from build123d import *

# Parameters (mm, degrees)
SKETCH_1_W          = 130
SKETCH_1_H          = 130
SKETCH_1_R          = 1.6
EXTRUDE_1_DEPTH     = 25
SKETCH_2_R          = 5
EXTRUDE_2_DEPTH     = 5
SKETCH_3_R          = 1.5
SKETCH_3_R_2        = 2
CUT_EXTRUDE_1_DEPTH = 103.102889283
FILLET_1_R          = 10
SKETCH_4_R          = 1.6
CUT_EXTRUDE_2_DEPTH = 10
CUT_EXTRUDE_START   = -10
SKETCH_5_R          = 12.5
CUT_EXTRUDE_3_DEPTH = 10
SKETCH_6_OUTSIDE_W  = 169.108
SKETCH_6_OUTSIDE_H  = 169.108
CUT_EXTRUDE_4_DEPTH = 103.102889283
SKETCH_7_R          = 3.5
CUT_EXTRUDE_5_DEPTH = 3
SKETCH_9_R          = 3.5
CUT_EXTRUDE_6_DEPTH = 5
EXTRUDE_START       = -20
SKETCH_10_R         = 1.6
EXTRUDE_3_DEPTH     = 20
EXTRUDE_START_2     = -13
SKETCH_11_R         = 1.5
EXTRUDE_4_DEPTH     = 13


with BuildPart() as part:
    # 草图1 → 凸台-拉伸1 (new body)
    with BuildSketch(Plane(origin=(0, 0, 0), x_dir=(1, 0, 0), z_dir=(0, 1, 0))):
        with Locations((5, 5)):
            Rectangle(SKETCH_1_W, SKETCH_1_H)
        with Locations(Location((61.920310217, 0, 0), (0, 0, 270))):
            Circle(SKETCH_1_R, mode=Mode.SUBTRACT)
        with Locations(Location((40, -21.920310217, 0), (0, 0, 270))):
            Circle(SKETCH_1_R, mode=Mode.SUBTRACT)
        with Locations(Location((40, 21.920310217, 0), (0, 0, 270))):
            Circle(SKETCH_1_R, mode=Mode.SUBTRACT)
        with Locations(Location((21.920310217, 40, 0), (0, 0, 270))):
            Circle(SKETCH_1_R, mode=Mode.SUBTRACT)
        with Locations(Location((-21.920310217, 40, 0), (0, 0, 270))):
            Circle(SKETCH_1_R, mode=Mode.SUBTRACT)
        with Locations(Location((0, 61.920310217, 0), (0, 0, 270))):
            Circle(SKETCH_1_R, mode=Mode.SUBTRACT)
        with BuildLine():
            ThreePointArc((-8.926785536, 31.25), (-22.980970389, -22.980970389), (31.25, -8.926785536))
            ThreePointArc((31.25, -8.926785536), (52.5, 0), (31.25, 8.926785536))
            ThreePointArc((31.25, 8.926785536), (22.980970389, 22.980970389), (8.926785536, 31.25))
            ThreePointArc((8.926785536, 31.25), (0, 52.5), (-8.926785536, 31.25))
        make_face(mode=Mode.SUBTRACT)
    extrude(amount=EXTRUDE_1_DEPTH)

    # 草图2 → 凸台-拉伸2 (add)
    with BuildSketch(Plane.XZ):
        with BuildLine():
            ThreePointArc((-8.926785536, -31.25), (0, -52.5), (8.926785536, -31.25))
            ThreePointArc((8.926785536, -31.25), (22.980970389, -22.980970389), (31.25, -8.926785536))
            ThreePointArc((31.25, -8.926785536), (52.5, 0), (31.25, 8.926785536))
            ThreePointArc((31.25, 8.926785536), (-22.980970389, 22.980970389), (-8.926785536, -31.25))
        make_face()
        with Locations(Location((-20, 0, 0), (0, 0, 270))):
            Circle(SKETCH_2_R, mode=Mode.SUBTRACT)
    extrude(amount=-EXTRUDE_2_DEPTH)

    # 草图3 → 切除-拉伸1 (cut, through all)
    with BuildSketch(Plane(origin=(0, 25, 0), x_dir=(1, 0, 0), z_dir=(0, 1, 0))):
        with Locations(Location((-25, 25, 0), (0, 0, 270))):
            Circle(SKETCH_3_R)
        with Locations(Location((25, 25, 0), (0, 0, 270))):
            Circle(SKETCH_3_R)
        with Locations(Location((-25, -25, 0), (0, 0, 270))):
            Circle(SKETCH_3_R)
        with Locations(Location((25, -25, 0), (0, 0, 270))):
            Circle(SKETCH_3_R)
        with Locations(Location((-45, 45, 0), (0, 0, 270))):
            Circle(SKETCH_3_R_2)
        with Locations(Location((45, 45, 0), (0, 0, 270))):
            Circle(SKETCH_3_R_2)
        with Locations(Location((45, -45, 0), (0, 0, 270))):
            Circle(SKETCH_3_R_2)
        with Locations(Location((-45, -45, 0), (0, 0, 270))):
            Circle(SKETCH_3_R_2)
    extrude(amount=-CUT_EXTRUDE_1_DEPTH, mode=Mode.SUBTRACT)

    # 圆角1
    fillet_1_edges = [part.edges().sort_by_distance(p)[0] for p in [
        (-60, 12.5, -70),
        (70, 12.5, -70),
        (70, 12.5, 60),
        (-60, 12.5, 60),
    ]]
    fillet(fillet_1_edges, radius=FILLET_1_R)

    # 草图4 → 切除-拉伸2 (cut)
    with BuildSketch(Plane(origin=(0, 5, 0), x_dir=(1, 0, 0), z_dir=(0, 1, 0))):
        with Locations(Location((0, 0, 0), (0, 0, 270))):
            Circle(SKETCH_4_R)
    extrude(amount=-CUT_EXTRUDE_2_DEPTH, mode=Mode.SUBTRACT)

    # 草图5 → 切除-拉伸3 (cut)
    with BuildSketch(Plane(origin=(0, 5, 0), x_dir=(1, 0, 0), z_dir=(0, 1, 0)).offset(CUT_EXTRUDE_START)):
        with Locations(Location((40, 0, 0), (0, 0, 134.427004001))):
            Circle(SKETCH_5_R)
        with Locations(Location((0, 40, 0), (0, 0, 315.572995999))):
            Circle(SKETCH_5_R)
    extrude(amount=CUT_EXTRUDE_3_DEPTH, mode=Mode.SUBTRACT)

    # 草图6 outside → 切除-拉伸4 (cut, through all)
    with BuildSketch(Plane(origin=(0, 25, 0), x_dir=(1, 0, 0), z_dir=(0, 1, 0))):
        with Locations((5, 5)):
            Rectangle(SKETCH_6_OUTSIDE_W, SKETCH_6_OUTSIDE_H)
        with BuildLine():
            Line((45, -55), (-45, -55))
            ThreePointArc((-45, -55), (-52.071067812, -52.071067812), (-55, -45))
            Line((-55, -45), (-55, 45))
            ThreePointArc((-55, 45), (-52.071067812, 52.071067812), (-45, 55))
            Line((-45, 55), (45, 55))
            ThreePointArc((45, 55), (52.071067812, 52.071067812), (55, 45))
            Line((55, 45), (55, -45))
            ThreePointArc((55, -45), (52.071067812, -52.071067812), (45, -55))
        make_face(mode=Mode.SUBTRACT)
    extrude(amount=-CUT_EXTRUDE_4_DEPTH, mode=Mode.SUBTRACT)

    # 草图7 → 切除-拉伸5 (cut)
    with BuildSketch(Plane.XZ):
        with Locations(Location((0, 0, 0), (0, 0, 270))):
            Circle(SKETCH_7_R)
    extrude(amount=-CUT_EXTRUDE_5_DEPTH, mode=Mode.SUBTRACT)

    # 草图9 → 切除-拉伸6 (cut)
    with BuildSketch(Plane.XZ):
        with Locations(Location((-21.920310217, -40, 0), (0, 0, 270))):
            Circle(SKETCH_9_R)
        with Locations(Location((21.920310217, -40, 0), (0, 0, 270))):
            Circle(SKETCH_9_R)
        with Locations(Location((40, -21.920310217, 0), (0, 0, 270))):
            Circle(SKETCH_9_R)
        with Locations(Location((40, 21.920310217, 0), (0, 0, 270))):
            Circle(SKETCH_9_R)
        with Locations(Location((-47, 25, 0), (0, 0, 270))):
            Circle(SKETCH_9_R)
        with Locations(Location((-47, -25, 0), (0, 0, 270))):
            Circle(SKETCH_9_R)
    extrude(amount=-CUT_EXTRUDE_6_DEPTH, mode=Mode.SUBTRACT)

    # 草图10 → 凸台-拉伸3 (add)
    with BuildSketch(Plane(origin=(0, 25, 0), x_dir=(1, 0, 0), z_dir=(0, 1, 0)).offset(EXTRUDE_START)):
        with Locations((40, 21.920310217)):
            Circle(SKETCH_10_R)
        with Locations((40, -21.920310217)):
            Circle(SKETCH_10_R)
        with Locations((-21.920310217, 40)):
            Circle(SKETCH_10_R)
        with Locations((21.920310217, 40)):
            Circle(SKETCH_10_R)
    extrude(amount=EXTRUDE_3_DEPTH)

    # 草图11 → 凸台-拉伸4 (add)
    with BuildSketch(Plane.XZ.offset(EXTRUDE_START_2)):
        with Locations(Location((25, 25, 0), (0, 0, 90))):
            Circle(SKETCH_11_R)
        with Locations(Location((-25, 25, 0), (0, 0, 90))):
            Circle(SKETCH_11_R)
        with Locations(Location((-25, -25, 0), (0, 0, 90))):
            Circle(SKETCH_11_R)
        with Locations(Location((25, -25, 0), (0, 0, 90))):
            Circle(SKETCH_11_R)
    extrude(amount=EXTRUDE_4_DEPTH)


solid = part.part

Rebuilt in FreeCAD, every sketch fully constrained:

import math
import FreeCAD as App
import Part
import Sketcher
Q = App.Units.Quantity


def edges_at(feature, points):
    """Names of the edges that pass closest to the given points."""
    edges = feature.Shape.Edges
    near = lambda p: min(range(len(edges)), key=lambda i: edges[i].distToShape(Part.Vertex(*p))[0])
    return sorted({f"Edge{near(p) + 1}" for p in points})


def add_polygon(sketch, points):
    """Adds a closed chain of lines whose ends are joined by coincident constraints."""
    first, n = sketch.GeometryCount, len(points)
    for a, b in zip(points, points[1:] + points[:1]):
        sketch.addGeometry(Part.LineSegment(App.Vector(*a, 0), App.Vector(*b, 0)), False)
    for i in range(n):
        sketch.addConstraint(Sketcher.Constraint("Coincident", first + i, 2, first + (i + 1) % n, 1))

doc = App.newDocument("Part")
body = doc.addObject("PartDesign::Body", "Body")

# Sketch on XZ plane
sketch1 = body.newObject("Sketcher::SketchObject", "Sketch")
sketch1.AttachmentSupport = (doc.getObject("XZ_Plane"), [""])
sketch1.MapMode = "FlatFace"
add_polygon(sketch1, [(-60, -70), (-60, 60), (70, 60), (70, -70)])  # lines 0-3
sketch1.addGeometry(Part.ArcOfCircle(Part.Circle(App.Vector(0, 0, 0), App.Vector(0, 0, 1), 32.5), math.radians(15.942369), math.radians(254.057631)), False)  # 4
sketch1.addGeometry(Part.ArcOfCircle(Part.Circle(App.Vector(0, -40, 0), App.Vector(0, 0, 1), 12.5), math.radians(135.572996), math.radians(404.427004)), False)  # 5
sketch1.addGeometry(Part.ArcOfCircle(Part.Circle(App.Vector(0, 0, 0), App.Vector(0, 0, 1), 32.5), math.radians(-74.057631), math.radians(-15.942369)), False)  # 6
sketch1.addGeometry(Part.ArcOfCircle(Part.Circle(App.Vector(40, 0, 0), App.Vector(0, 0, 1), 12.5), math.radians(-134.427004), math.radians(134.427004)), False)  # 7
sketch1.addGeometry(Part.Circle(App.Vector(40, 21.92031, 0), App.Vector(0, 0, 1), 1.6), False)  # 8
sketch1.addGeometry(Part.Circle(App.Vector(61.92031, 0, 0), App.Vector(0, 0, 1), 1.6), False)  # 9
sketch1.addGeometry(Part.Circle(App.Vector(-21.92031, -40, 0), App.Vector(0, 0, 1), 1.6), False)  # 10
sketch1.addGeometry(Part.Circle(App.Vector(0, -61.92031, 0), App.Vector(0, 0, 1), 1.6), False)  # 11
sketch1.addGeometry(Part.Circle(App.Vector(40, -21.92031, 0), App.Vector(0, 0, 1), 1.6), False)  # 12
sketch1.addGeometry(Part.Circle(App.Vector(21.92031, -40, 0), App.Vector(0, 0, 1), 1.6), False)  # 13
sketch1.addConstraint([
    Sketcher.Constraint("Coincident", 4, 2, 5, 1),
    Sketcher.Constraint("Coincident", 5, 2, 6, 1),
    Sketcher.Constraint("Coincident", 6, 2, 7, 1),
    Sketcher.Constraint("Coincident", 7, 2, 4, 1),
    Sketcher.Constraint("Vertical", 0),
    Sketcher.Constraint("Horizontal", 1),
    Sketcher.Constraint("Vertical", 2),
    Sketcher.Constraint("Horizontal", 3),
    Sketcher.Constraint("Coincident", 4, 3, -1, 1),
    Sketcher.Constraint("Coincident", 6, 3, -1, 1),
    Sketcher.Constraint("Equal", 4, 6),
    Sketcher.Constraint("Equal", 5, 7),
    Sketcher.Constraint("Equal", 8, 9),
    Sketcher.Constraint("Equal", 9, 10),
    Sketcher.Constraint("Equal", 10, 11),
    Sketcher.Constraint("Equal", 11, 12),
    Sketcher.Constraint("Equal", 12, 13),
    Sketcher.Constraint("Symmetric", 10, 3, 13, 3, -2),
    Sketcher.Constraint("Symmetric", 8, 3, 12, 3, -1),
    Sketcher.Constraint("PointOnObject", 5, 3, -2),
    Sketcher.Constraint("PointOnObject", 7, 3, -1),
    Sketcher.Constraint("PointOnObject", 9, 3, -1),
    Sketcher.Constraint("PointOnObject", 11, 3, -2),
    Sketcher.Constraint("Horizontal", 5, 3, 10, 3),
    Sketcher.Constraint("Vertical", 7, 3, 8, 3),
    Sketcher.Constraint("Equal", 3, 0),
    Sketcher.Constraint("Diameter", 8, Q("3.2 mm")),
    Sketcher.Constraint("Radius", 4, Q("32.5 mm")),
    Sketcher.Constraint("Radius", 5, Q("12.5 mm")),
    Sketcher.Constraint("DistanceX", 1, 1, 1, 2, Q("130 mm")),
    Sketcher.Constraint("DistanceY", 5, 3, -1, 1, Q("40 mm")),
    Sketcher.Constraint("DistanceX", -1, 1, 7, 3, Q("40 mm")),
    Sketcher.Constraint("DistanceX", 0, 2, -1, 1, Q("60 mm")),
    Sketcher.Constraint("DistanceY", -1, 1, 0, 2, Q("60 mm")),
    Sketcher.Constraint("DistanceY", -1, 1, 8, 3, Q("21.92031 mm")),
    Sketcher.Constraint("DistanceX", -1, 1, 9, 3, Q("61.92031 mm")),
    Sketcher.Constraint("DistanceX", 10, 3, -1, 1, Q("21.92031 mm")),
    Sketcher.Constraint("DistanceY", 11, 3, -1, 1, Q("61.92031 mm")),
])
pad1 = body.newObject("PartDesign::Pad", "Pad")
pad1.Profile = sketch1
pad1.Length = 25
pad1.Reversed = True

# Sketch on XZ plane
sketch2 = body.newObject("Sketcher::SketchObject", "Sketch001")
sketch2.AttachmentSupport = (doc.getObject("XZ_Plane"), [""])
sketch2.MapMode = "FlatFace"
sketch2.addGeometry([
    Part.ArcOfCircle(Part.Circle(App.Vector(0, -40, 0), App.Vector(0, 0, 1), 12.5), math.radians(135.572996), math.radians(404.427004)),  # 0
    Part.ArcOfCircle(Part.Circle(App.Vector(0, 0, 0), App.Vector(0, 0, 1), 32.5), math.radians(-74.057631), math.radians(-15.942369)),  # 1
    Part.ArcOfCircle(Part.Circle(App.Vector(40, 0, 0), App.Vector(0, 0, 1), 12.5), math.radians(-134.427004), math.radians(134.427004)),  # 2
    Part.ArcOfCircle(Part.Circle(App.Vector(0, 0, 0), App.Vector(0, 0, 1), 32.5), math.radians(15.942369), math.radians(254.057631)),  # 3
    Part.Circle(App.Vector(-20, 0, 0), App.Vector(0, 0, 1), 5),  # 4
], False)
sketch2.addConstraint([
    Sketcher.Constraint("Coincident", 0, 2, 1, 1),
    Sketcher.Constraint("Coincident", 1, 2, 2, 1),
    Sketcher.Constraint("Coincident", 2, 2, 3, 1),
    Sketcher.Constraint("Coincident", 3, 2, 0, 1),
    Sketcher.Constraint("Coincident", 1, 3, -1, 1),
    Sketcher.Constraint("Coincident", 3, 3, -1, 1),
    Sketcher.Constraint("Equal", 0, 2),
    Sketcher.Constraint("Equal", 1, 3),
    Sketcher.Constraint("PointOnObject", 0, 3, -2),
    Sketcher.Constraint("PointOnObject", 2, 3, -1),
    Sketcher.Constraint("PointOnObject", 4, 3, -1),
    Sketcher.Constraint("Diameter", 4, Q("10 mm")),
    Sketcher.Constraint("Radius", 0, Q("12.5 mm")),
    Sketcher.Constraint("Radius", 1, Q("32.5 mm")),
    Sketcher.Constraint("DistanceY", 0, 3, -1, 1, Q("40 mm")),
    Sketcher.Constraint("DistanceX", -1, 1, 2, 3, Q("40 mm")),
    Sketcher.Constraint("DistanceX", 4, 3, -1, 1, Q("20 mm")),
])
pad2 = body.newObject("PartDesign::Pad", "Pad001")
pad2.Profile = sketch2
pad2.Length = 5
pad2.Reversed = True

# Sketch on XZ plane
sketch3 = body.newObject("Sketcher::SketchObject", "Sketch002")
sketch3.AttachmentSupport = (doc.getObject("XZ_Plane"), [""])
sketch3.MapMode = "FlatFace"
sketch3.AttachmentOffset = App.Placement(App.Vector(0, 0, -25), App.Rotation())
sketch3.addGeometry([
    Part.Circle(App.Vector(-25, -25, 0), App.Vector(0, 0, 1), 1.5),  # 0
    Part.Circle(App.Vector(25, -25, 0), App.Vector(0, 0, 1), 1.5),  # 1
    Part.Circle(App.Vector(-25, 25, 0), App.Vector(0, 0, 1), 1.5),  # 2
    Part.Circle(App.Vector(25, 25, 0), App.Vector(0, 0, 1), 1.5),  # 3
    Part.Circle(App.Vector(-45, -45, 0), App.Vector(0, 0, 1), 2),  # 4
    Part.Circle(App.Vector(45, -45, 0), App.Vector(0, 0, 1), 2),  # 5
    Part.Circle(App.Vector(45, 45, 0), App.Vector(0, 0, 1), 2),  # 6
    Part.Circle(App.Vector(-45, 45, 0), App.Vector(0, 0, 1), 2),  # 7
], False)
sketch3.addConstraint([
    Sketcher.Constraint("Equal", 0, 1),
    Sketcher.Constraint("Equal", 1, 2),
    Sketcher.Constraint("Equal", 2, 3),
    Sketcher.Constraint("Equal", 4, 5),
    Sketcher.Constraint("Equal", 5, 6),
    Sketcher.Constraint("Equal", 6, 7),
    Sketcher.Constraint("Symmetric", 1, 3, 2, 3, -1, 1),
    Sketcher.Constraint("Symmetric", 0, 3, 3, 3, -1, 1),
    Sketcher.Constraint("Symmetric", 4, 3, 6, 3, -1, 1),
    Sketcher.Constraint("Symmetric", 5, 3, 7, 3, -1, 1),
    Sketcher.Constraint("Symmetric", 0, 3, 1, 3, -2),
    Sketcher.Constraint("Symmetric", 4, 3, 5, 3, -2),
    Sketcher.Constraint("Diameter", 0, Q("3 mm")),
    Sketcher.Constraint("Diameter", 4, Q("4 mm")),
    Sketcher.Constraint("DistanceX", 0, 3, -1, 1, Q("25 mm")),
    Sketcher.Constraint("DistanceY", 0, 3, -1, 1, Q("25 mm")),
    Sketcher.Constraint("DistanceX", 4, 3, -1, 1, Q("45 mm")),
    Sketcher.Constraint("DistanceY", 4, 3, -1, 1, Q("45 mm")),
])
pocket1 = body.newObject("PartDesign::Pocket", "Pocket")
pocket1.Profile = sketch3
pocket1.Type = "ThroughAll"
pocket1.Reversed = True
doc.recompute()

fillet = body.newObject("PartDesign::Fillet", "Fillet")
fillet.Base = (pocket1, edges_at(pocket1, [
    (-60, 12.5, -70),
    (70, 12.5, -70),
    (70, 12.5, 60),
    (-60, 12.5, 60),
]))
fillet.Radius = 10

# Sketch on XZ plane
sketch4 = body.newObject("Sketcher::SketchObject", "Sketch003")
sketch4.AttachmentSupport = (doc.getObject("XZ_Plane"), [""])
sketch4.MapMode = "FlatFace"
sketch4.AttachmentOffset = App.Placement(App.Vector(0, 0, -5), App.Rotation())
sketch4.addGeometry(Part.Circle(App.Vector(0, 0, 0), App.Vector(0, 0, 1), 1.6), False)
sketch4.addConstraint([
    Sketcher.Constraint("Coincident", 0, 3, -1, 1),
    Sketcher.Constraint("Diameter", 0, Q("3.2 mm")),
])
pocket2 = body.newObject("PartDesign::Pocket", "Pocket001")
pocket2.Profile = sketch4
pocket2.Length = 10
pocket2.Reversed = True

# Sketch on XZ plane
sketch5 = body.newObject("Sketcher::SketchObject", "Sketch004")
sketch5.AttachmentSupport = (doc.getObject("XZ_Plane"), [""])
sketch5.MapMode = "FlatFace"
sketch5.AttachmentOffset = App.Placement(App.Vector(0, 0, 5), App.Rotation())
sketch5.addGeometry([
    Part.Circle(App.Vector(40, 0, 0), App.Vector(0, 0, 1), 12.5),
    Part.Circle(App.Vector(0, -40, 0), App.Vector(0, 0, 1), 12.5),
], False)
sketch5.addConstraint([
    Sketcher.Constraint("Equal", 0, 1),
    Sketcher.Constraint("PointOnObject", 0, 3, -1),
    Sketcher.Constraint("PointOnObject", 1, 3, -2),
    Sketcher.Constraint("Diameter", 0, Q("25 mm")),
    Sketcher.Constraint("DistanceX", -1, 1, 0, 3, Q("40 mm")),
    Sketcher.Constraint("DistanceY", 1, 3, -1, 1, Q("40 mm")),
])
pocket3 = body.newObject("PartDesign::Pocket", "Pocket002")
pocket3.Profile = sketch5
pocket3.Length = 10

# Sketch on XZ plane
sketch6 = body.newObject("Sketcher::SketchObject", "Sketch005")
sketch6.AttachmentSupport = (doc.getObject("XZ_Plane"), [""])
sketch6.MapMode = "FlatFace"
sketch6.AttachmentOffset = App.Placement(App.Vector(0, 0, -25), App.Rotation())
add_polygon(sketch6, [(-79.554, -89.554), (-79.554, 79.554), (89.554, 79.554), (89.554, -89.554)])  # lines 0-3
sketch6.addGeometry(Part.ArcOfCircle(Part.Circle(App.Vector(45, 45, 0), App.Vector(0, 0, 1), 10), math.radians(0), math.radians(90)), False)  # 4
sketch6.addGeometry(Part.LineSegment(App.Vector(45, 55, 0), App.Vector(-45, 55, 0)), False)  # 5
sketch6.addGeometry(Part.ArcOfCircle(Part.Circle(App.Vector(-45, 45, 0), App.Vector(0, 0, 1), 10), math.radians(90), math.radians(180)), False)  # 6
sketch6.addGeometry(Part.LineSegment(App.Vector(-55, 45, 0), App.Vector(-55, -45, 0)), False)  # 7
sketch6.addGeometry(Part.ArcOfCircle(Part.Circle(App.Vector(-45, -45, 0), App.Vector(0, 0, 1), 10), math.radians(180), math.radians(270)), False)  # 8
sketch6.addGeometry(Part.LineSegment(App.Vector(-45, -55, 0), App.Vector(45, -55, 0)), False)  # 9
sketch6.addGeometry(Part.ArcOfCircle(Part.Circle(App.Vector(45, -45, 0), App.Vector(0, 0, 1), 10), math.radians(-90), math.radians(0)), False)  # 10
sketch6.addGeometry(Part.LineSegment(App.Vector(55, -45, 0), App.Vector(55, 45, 0)), False)  # 11
sketch6.addConstraint([
    Sketcher.Constraint("Tangent", 4, 2, 5, 1),
    Sketcher.Constraint("Tangent", 5, 2, 6, 1),
    Sketcher.Constraint("Tangent", 6, 2, 7, 1),
    Sketcher.Constraint("Tangent", 7, 2, 8, 1),
    Sketcher.Constraint("Tangent", 8, 2, 9, 1),
    Sketcher.Constraint("Tangent", 9, 2, 10, 1),
    Sketcher.Constraint("Tangent", 10, 2, 11, 1),
    Sketcher.Constraint("Tangent", 11, 2, 4, 1),
    Sketcher.Constraint("Vertical", 0),
    Sketcher.Constraint("Horizontal", 1),
    Sketcher.Constraint("Vertical", 2),
    Sketcher.Constraint("Horizontal", 3),
    Sketcher.Constraint("Horizontal", 5),
    Sketcher.Constraint("Vertical", 7),
    Sketcher.Constraint("Horizontal", 9),
    Sketcher.Constraint("Vertical", 11),
    Sketcher.Constraint("Equal", 4, 6),
    Sketcher.Constraint("Equal", 6, 8),
    Sketcher.Constraint("Equal", 8, 10),
    Sketcher.Constraint("Symmetric", 4, 3, 8, 3, -1, 1),
    Sketcher.Constraint("Equal", 3, 0),
    Sketcher.Constraint("Equal", 9, 7),
    Sketcher.Constraint("Radius", 4, Q("10 mm")),
    Sketcher.Constraint("DistanceX", 5, 2, 5, 1, Q("90 mm")),
    Sketcher.Constraint("DistanceX", 1, 1, 1, 2, Q("169.108 mm")),
    Sketcher.Constraint("DistanceX", 0, 2, -1, 1, Q("79.554 mm")),
    Sketcher.Constraint("DistanceY", -1, 1, 0, 2, Q("79.554 mm")),
])
pocket4 = body.newObject("PartDesign::Pocket", "Pocket003")
pocket4.Profile = sketch6
pocket4.Type = "ThroughAll"
pocket4.Reversed = True

# Sketch on XZ plane
sketch7 = body.newObject("Sketcher::SketchObject", "Sketch006")
sketch7.AttachmentSupport = (doc.getObject("XZ_Plane"), [""])
sketch7.MapMode = "FlatFace"
sketch7.addGeometry(Part.Circle(App.Vector(0, 0, 0), App.Vector(0, 0, 1), 3.5), False)
sketch7.addConstraint([
    Sketcher.Constraint("Coincident", 0, 3, -1, 1),
    Sketcher.Constraint("Diameter", 0, Q("7 mm")),
])
pocket5 = body.newObject("PartDesign::Pocket", "Pocket004")
pocket5.Profile = sketch7
pocket5.Length = 3

# Sketch on XZ plane
sketch8 = body.newObject("Sketcher::SketchObject", "Sketch007")
sketch8.AttachmentSupport = (doc.getObject("XZ_Plane"), [""])
sketch8.MapMode = "FlatFace"
sketch8.addGeometry([
    Part.Circle(App.Vector(-21.92031, -40, 0), App.Vector(0, 0, 1), 3.5),  # 0
    Part.Circle(App.Vector(21.92031, -40, 0), App.Vector(0, 0, 1), 3.5),  # 1
    Part.Circle(App.Vector(40, -21.92031, 0), App.Vector(0, 0, 1), 3.5),  # 2
    Part.Circle(App.Vector(40, 21.92031, 0), App.Vector(0, 0, 1), 3.5),  # 3
    Part.Circle(App.Vector(-47, 25, 0), App.Vector(0, 0, 1), 3.5),  # 4
    Part.Circle(App.Vector(-47, -25, 0), App.Vector(0, 0, 1), 3.5),  # 5
], False)
sketch8.addConstraint([
    Sketcher.Constraint("Equal", 0, 1),
    Sketcher.Constraint("Equal", 1, 2),
    Sketcher.Constraint("Equal", 2, 3),
    Sketcher.Constraint("Equal", 3, 4),
    Sketcher.Constraint("Equal", 4, 5),
    Sketcher.Constraint("Symmetric", 0, 3, 1, 3, -2),
    Sketcher.Constraint("Symmetric", 2, 3, 3, 3, -1),
    Sketcher.Constraint("Symmetric", 4, 3, 5, 3, -1),
    Sketcher.Constraint("Diameter", 0, Q("7 mm")),
    Sketcher.Constraint("DistanceY", 0, 3, -1, 1, Q("40 mm")),
    Sketcher.Constraint("DistanceX", -1, 1, 2, 3, Q("40 mm")),
    Sketcher.Constraint("DistanceX", 4, 3, -1, 1, Q("47 mm")),
    Sketcher.Constraint("DistanceY", -1, 1, 4, 3, Q("25 mm")),
    Sketcher.Constraint("DistanceX", 0, 3, -1, 1, Q("21.92031 mm")),
    Sketcher.Constraint("DistanceY", 2, 3, -1, 1, Q("21.92031 mm")),
])
pocket6 = body.newObject("PartDesign::Pocket", "Pocket005")
pocket6.Profile = sketch8
pocket6.Length = 5

# Sketch on XZ plane
sketch9 = body.newObject("Sketcher::SketchObject", "Sketch008")
sketch9.AttachmentSupport = (doc.getObject("XZ_Plane"), [""])
sketch9.MapMode = "FlatFace"
sketch9.AttachmentOffset = App.Placement(App.Vector(0, 0, -5), App.Rotation())
sketch9.addGeometry([
    Part.Circle(App.Vector(40, -21.92031, 0), App.Vector(0, 0, 1), 1.6),
    Part.Circle(App.Vector(40, 21.92031, 0), App.Vector(0, 0, 1), 1.6),
    Part.Circle(App.Vector(-21.92031, -40, 0), App.Vector(0, 0, 1), 1.6),
    Part.Circle(App.Vector(21.92031, -40, 0), App.Vector(0, 0, 1), 1.6),
], False)
sketch9.addConstraint([
    Sketcher.Constraint("Equal", 0, 1),
    Sketcher.Constraint("Equal", 1, 2),
    Sketcher.Constraint("Equal", 2, 3),
    Sketcher.Constraint("Symmetric", 2, 3, 3, 3, -2),
    Sketcher.Constraint("Symmetric", 0, 3, 1, 3, -1),
    Sketcher.Constraint("Diameter", 0, Q("3.2 mm")),
    Sketcher.Constraint("DistanceX", -1, 1, 0, 3, Q("40 mm")),
    Sketcher.Constraint("DistanceY", 2, 3, -1, 1, Q("40 mm")),
    Sketcher.Constraint("DistanceY", 0, 3, -1, 1, Q("21.92031 mm")),
    Sketcher.Constraint("DistanceX", 2, 3, -1, 1, Q("21.92031 mm")),
])
pad3 = body.newObject("PartDesign::Pad", "Pad002")
pad3.Profile = sketch9
pad3.Length = 20
pad3.Reversed = True

# Sketch on XZ plane
sketch10 = body.newObject("Sketcher::SketchObject", "Sketch009")
sketch10.AttachmentSupport = (doc.getObject("XZ_Plane"), [""])
sketch10.MapMode = "FlatFace"
sketch10.AttachmentOffset = App.Placement(App.Vector(0, 0, -13), App.Rotation())
sketch10.addGeometry([
    Part.Circle(App.Vector(25, 25, 0), App.Vector(0, 0, 1), 1.5),
    Part.Circle(App.Vector(-25, 25, 0), App.Vector(0, 0, 1), 1.5),
    Part.Circle(App.Vector(-25, -25, 0), App.Vector(0, 0, 1), 1.5),
    Part.Circle(App.Vector(25, -25, 0), App.Vector(0, 0, 1), 1.5),
], False)
sketch10.addConstraint([
    Sketcher.Constraint("Equal", 0, 1),
    Sketcher.Constraint("Equal", 1, 2),
    Sketcher.Constraint("Equal", 2, 3),
    Sketcher.Constraint("Symmetric", 0, 3, 2, 3, -1, 1),
    Sketcher.Constraint("Symmetric", 1, 3, 3, 3, -1, 1),
    Sketcher.Constraint("Symmetric", 0, 3, 1, 3, -2),
    Sketcher.Constraint("Diameter", 0, Q("3 mm")),
    Sketcher.Constraint("DistanceX", -1, 1, 0, 3, Q("25 mm")),
    Sketcher.Constraint("DistanceY", -1, 1, 0, 3, Q("25 mm")),
])
pad4 = body.newObject("PartDesign::Pad", "Pad003")
pad4.Profile = sketch10
pad4.Length = 13

doc.recompute()
